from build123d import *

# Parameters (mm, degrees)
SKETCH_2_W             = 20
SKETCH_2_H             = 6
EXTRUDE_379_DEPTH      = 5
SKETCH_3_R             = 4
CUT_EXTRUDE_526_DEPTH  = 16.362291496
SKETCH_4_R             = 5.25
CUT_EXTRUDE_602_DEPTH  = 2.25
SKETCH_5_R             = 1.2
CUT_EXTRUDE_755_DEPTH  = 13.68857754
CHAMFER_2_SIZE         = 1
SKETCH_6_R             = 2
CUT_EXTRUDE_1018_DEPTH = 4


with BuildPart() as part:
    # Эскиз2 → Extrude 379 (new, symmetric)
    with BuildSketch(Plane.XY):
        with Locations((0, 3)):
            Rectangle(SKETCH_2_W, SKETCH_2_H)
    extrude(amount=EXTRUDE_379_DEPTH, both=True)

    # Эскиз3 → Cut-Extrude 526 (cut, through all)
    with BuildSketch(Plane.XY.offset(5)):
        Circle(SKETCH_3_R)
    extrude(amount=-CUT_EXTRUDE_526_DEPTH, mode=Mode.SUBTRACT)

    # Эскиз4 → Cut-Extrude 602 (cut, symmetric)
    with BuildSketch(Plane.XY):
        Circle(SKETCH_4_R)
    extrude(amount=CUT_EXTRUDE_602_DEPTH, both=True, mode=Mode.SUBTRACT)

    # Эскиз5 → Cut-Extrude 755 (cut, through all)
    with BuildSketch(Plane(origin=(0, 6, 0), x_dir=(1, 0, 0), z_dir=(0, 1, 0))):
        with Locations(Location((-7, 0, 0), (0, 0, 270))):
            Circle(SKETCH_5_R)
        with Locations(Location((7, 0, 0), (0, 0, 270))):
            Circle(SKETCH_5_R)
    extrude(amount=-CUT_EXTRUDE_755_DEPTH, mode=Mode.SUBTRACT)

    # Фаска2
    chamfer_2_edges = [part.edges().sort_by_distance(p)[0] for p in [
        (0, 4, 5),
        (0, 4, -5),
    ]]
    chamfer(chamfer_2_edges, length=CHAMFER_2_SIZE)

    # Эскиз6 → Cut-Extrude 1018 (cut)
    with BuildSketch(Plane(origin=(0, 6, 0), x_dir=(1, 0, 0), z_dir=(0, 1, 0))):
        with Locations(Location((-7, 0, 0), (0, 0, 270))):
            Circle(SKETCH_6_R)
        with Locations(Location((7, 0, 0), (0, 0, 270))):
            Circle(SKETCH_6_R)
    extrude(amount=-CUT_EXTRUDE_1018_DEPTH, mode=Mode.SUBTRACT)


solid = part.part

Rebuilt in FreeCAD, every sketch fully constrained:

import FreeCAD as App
import Part
import Sketcher
from FreeCAD import Vector
Q = App.Units.Quantity


def edges_at(feature, points):
    """Names of the edges that pass closest to the given points."""
    edges = feature.Shape.Edges
    near = lambda p: min(range(len(edges)), key=lambda i: edges[i].distToShape(Part.Vertex(*p))[0])
    return sorted({f"Edge{near(p) + 1}" for p in points})


def add_polygon(sketch, points):
    """Adds a closed chain of lines whose ends are joined by coincident constraints."""
    first, n = sketch.GeometryCount, len(points)
    for a, b in zip(points, points[1:] + points[:1]):
        sketch.addGeometry(Part.LineSegment(App.Vector(*a, 0), App.Vector(*b, 0)), False)
    for i in range(n):
        sketch.addConstraint(Sketcher.Constraint("Coincident", first + i, 2, first + (i + 1) % n, 1))

doc = App.newDocument("Part")
params = doc.addObject("Spreadsheet::Sheet", "Params")
for row, (alias, value) in enumerate([
    ("sketch1_width", "20 mm"),
    ("sketch1_height", "6 mm"),
    ("pad1_length", "10 mm"),
    ("sketch2_diameter", "8 mm"),
    ("sketch3_diameter", "10.5 mm"),
    ("pocket2_length", "4.5 mm"),
    ("sketch4_diameter", "2.4 mm"),
    ("chamfer_size", "1 mm"),
    ("sketch5_diameter", "4 mm"),
    ("pocket4_length", "4 mm"),
], start=1):
    params.set(f"A{row}", alias)
    params.set(f"B{row}", "=" + value)
    params.setAlias(f"B{row}", alias)

body = doc.addObject("PartDesign::Body", "Body")

# Sketch on XY plane
sketch1 = body.newObject("Sketcher::SketchObject", "Sketch")
sketch1.AttachmentSupport = (doc.getObject("XY_Plane"), [""])
sketch1.MapMode = "FlatFace"
add_polygon(sketch1, [(-10, 6), (-10, 0), (10, 0), (10, 6)])  # lines 0-3
sketch1.addConstraint(Sketcher.Constraint("Vertical", 0))
sketch1.addConstraint(Sketcher.Constraint("Horizontal", 1))
sketch1.addConstraint(Sketcher.Constraint("Vertical", 2))
sketch1.addConstraint(Sketcher.Constraint("Horizontal", 3))
sketch1.addConstraint(Sketcher.Constraint("Symmetric", 0, 2, 1, 2, -1, 1))
sketch1.addConstraint(Sketcher.Constraint("DistanceX", 1, 1, 1, 2, Q("20 mm")))
sketch1.addConstraint(Sketcher.Constraint("DistanceY", 0, 2, 0, 1, Q("6 mm")))
sketch1.setExpression("Constraints[9]", "Params.sketch1_width")
sketch1.setExpression("Constraints[10]", "Params.sketch1_height")
pad1 = body.newObject("PartDesign::Pad", "Pad")
pad1.Profile = sketch1
pad1.setExpression("Length", "Params.pad1_length")
pad1.Midplane = True

# Sketch on XY plane
sketch2 = body.newObject("Sketcher::SketchObject", "Sketch001")
sketch2.AttachmentSupport = (doc.getObject("XY_Plane"), [""])
sketch2.MapMode = "FlatFace"
sketch2.AttachmentOffset = App.Placement(Vector(0, 0, 5), App.Rotation())
sketch2.addGeometry(Part.Circle(Vector(0, 0, 0), Vector(0, 0, 1), 4), False)
sketch2.addConstraint(Sketcher.Constraint("Coincident", 0, 3, -1, 1))
sketch2.addConstraint(Sketcher.Constraint("Diameter", 0, Q("8 mm")))
sketch2.setExpression("Constraints[1]", "Params.sketch2_diameter")
pocket1 = body.newObject("PartDesign::Pocket", "Pocket")
pocket1.Profile = sketch2
pocket1.Type = "ThroughAll"

# Sketch on XY plane
sketch3 = body.newObject("Sketcher::SketchObject", "Sketch002")
sketch3.AttachmentSupport = (doc.getObject("XY_Plane"), [""])
sketch3.MapMode = "FlatFace"
sketch3.addGeometry(Part.Circle(Vector(0, 0, 0), Vector(0, 0, 1), 5.25), False)
sketch3.addConstraint(Sketcher.Constraint("Coincident", 0, 3, -1, 1))
sketch3.addConstraint(Sketcher.Constraint("Diameter", 0, Q("10.5 mm")))
sketch3.setExpression("Constraints[1]", "Params.sketch3_diameter")
pocket2 = body.newObject("PartDesign::Pocket", "Pocket001")
pocket2.Profile = sketch3
pocket2.setExpression("Length", "Params.pocket2_length")
pocket2.Midplane = True

# Sketch on XZ plane
sketch4 = body.newObject("Sketcher::SketchObject", "Sketch003")
sketch4.AttachmentSupport = (doc.getObject("XZ_Plane"), [""])
sketch4.MapMode = "FlatFace"
sketch4.AttachmentOffset = App.Placement(Vector(0, 0, -6), App.Rotation())
sketch4.addGeometry(Part.Circle(Vector(-7, 0, 0), Vector(0, 0, 1), 1.2), False)
sketch4.addGeometry(Part.Circle(Vector(7, 0, 0), Vector(0, 0, 1), 1.2), False)
sketch4.addConstraint(Sketcher.Constraint("Equal", 0, 1))
sketch4.addConstraint(Sketcher.Constraint("Symmetric", 0, 3, 1, 3, -1, 1))
sketch4.addConstraint(Sketcher.Constraint("PointOnObject", 0, 3, -1))
sketch4.addConstraint(Sketcher.Constraint("Diameter", 0, Q("2.4 mm")))
sketch4.addConstraint(Sketcher.Constraint("DistanceX", 0, 3, -1, 1, Q("7 mm")))
sketch4.setExpression("Constraints[3]", "Params.sketch4_diameter")
pocket3 = body.newObject("PartDesign::Pocket", "Pocket002")
pocket3.Profile = sketch4
pocket3.Type = "ThroughAll"
pocket3.Reversed = True
doc.recompute()

chamfer = body.newObject("PartDesign::Chamfer", "Chamfer")
chamfer.Base = (pocket3, edges_at(pocket3, [(0, 4, 5), (0, 4, -5)]))
chamfer.setExpression("Size", "Params.chamfer_size")

# Sketch on XZ plane
sketch5 = body.newObject("Sketcher::SketchObject", "Sketch004")
sketch5.AttachmentSupport = (doc.getObject("XZ_Plane"), [""])
sketch5.MapMode = "FlatFace"
sketch5.AttachmentOffset = App.Placement(Vector(0, 0, -6), App.Rotation())
sketch5.addGeometry(Part.Circle(Vector(-7, 0, 0), Vector(0, 0, 1), 2), False)
sketch5.addGeometry(Part.Circle(Vector(7, 0, 0), Vector(0, 0, 1), 2), False)
sketch5.addConstraint(Sketcher.Constraint("Equal", 0, 1))
sketch5.addConstraint(Sketcher.Constraint("Symmetric", 0, 3, 1, 3, -1, 1))
sketch5.addConstraint(Sketcher.Constraint("PointOnObject", 0, 3, -1))
sketch5.addConstraint(Sketcher.Constraint("Diameter", 0, Q("4 mm")))
sketch5.addConstraint(Sketcher.Constraint("DistanceX", 0, 3, -1, 1, Q("7 mm")))
sketch5.setExpression("Constraints[3]", "Params.sketch5_diameter")
pocket4 = body.newObject("PartDesign::Pocket", "Pocket003")
pocket4.Profile = sketch5
pocket4.setExpression("Length", "Params.pocket4_length")
pocket4.Reversed = True

doc.recompute()
